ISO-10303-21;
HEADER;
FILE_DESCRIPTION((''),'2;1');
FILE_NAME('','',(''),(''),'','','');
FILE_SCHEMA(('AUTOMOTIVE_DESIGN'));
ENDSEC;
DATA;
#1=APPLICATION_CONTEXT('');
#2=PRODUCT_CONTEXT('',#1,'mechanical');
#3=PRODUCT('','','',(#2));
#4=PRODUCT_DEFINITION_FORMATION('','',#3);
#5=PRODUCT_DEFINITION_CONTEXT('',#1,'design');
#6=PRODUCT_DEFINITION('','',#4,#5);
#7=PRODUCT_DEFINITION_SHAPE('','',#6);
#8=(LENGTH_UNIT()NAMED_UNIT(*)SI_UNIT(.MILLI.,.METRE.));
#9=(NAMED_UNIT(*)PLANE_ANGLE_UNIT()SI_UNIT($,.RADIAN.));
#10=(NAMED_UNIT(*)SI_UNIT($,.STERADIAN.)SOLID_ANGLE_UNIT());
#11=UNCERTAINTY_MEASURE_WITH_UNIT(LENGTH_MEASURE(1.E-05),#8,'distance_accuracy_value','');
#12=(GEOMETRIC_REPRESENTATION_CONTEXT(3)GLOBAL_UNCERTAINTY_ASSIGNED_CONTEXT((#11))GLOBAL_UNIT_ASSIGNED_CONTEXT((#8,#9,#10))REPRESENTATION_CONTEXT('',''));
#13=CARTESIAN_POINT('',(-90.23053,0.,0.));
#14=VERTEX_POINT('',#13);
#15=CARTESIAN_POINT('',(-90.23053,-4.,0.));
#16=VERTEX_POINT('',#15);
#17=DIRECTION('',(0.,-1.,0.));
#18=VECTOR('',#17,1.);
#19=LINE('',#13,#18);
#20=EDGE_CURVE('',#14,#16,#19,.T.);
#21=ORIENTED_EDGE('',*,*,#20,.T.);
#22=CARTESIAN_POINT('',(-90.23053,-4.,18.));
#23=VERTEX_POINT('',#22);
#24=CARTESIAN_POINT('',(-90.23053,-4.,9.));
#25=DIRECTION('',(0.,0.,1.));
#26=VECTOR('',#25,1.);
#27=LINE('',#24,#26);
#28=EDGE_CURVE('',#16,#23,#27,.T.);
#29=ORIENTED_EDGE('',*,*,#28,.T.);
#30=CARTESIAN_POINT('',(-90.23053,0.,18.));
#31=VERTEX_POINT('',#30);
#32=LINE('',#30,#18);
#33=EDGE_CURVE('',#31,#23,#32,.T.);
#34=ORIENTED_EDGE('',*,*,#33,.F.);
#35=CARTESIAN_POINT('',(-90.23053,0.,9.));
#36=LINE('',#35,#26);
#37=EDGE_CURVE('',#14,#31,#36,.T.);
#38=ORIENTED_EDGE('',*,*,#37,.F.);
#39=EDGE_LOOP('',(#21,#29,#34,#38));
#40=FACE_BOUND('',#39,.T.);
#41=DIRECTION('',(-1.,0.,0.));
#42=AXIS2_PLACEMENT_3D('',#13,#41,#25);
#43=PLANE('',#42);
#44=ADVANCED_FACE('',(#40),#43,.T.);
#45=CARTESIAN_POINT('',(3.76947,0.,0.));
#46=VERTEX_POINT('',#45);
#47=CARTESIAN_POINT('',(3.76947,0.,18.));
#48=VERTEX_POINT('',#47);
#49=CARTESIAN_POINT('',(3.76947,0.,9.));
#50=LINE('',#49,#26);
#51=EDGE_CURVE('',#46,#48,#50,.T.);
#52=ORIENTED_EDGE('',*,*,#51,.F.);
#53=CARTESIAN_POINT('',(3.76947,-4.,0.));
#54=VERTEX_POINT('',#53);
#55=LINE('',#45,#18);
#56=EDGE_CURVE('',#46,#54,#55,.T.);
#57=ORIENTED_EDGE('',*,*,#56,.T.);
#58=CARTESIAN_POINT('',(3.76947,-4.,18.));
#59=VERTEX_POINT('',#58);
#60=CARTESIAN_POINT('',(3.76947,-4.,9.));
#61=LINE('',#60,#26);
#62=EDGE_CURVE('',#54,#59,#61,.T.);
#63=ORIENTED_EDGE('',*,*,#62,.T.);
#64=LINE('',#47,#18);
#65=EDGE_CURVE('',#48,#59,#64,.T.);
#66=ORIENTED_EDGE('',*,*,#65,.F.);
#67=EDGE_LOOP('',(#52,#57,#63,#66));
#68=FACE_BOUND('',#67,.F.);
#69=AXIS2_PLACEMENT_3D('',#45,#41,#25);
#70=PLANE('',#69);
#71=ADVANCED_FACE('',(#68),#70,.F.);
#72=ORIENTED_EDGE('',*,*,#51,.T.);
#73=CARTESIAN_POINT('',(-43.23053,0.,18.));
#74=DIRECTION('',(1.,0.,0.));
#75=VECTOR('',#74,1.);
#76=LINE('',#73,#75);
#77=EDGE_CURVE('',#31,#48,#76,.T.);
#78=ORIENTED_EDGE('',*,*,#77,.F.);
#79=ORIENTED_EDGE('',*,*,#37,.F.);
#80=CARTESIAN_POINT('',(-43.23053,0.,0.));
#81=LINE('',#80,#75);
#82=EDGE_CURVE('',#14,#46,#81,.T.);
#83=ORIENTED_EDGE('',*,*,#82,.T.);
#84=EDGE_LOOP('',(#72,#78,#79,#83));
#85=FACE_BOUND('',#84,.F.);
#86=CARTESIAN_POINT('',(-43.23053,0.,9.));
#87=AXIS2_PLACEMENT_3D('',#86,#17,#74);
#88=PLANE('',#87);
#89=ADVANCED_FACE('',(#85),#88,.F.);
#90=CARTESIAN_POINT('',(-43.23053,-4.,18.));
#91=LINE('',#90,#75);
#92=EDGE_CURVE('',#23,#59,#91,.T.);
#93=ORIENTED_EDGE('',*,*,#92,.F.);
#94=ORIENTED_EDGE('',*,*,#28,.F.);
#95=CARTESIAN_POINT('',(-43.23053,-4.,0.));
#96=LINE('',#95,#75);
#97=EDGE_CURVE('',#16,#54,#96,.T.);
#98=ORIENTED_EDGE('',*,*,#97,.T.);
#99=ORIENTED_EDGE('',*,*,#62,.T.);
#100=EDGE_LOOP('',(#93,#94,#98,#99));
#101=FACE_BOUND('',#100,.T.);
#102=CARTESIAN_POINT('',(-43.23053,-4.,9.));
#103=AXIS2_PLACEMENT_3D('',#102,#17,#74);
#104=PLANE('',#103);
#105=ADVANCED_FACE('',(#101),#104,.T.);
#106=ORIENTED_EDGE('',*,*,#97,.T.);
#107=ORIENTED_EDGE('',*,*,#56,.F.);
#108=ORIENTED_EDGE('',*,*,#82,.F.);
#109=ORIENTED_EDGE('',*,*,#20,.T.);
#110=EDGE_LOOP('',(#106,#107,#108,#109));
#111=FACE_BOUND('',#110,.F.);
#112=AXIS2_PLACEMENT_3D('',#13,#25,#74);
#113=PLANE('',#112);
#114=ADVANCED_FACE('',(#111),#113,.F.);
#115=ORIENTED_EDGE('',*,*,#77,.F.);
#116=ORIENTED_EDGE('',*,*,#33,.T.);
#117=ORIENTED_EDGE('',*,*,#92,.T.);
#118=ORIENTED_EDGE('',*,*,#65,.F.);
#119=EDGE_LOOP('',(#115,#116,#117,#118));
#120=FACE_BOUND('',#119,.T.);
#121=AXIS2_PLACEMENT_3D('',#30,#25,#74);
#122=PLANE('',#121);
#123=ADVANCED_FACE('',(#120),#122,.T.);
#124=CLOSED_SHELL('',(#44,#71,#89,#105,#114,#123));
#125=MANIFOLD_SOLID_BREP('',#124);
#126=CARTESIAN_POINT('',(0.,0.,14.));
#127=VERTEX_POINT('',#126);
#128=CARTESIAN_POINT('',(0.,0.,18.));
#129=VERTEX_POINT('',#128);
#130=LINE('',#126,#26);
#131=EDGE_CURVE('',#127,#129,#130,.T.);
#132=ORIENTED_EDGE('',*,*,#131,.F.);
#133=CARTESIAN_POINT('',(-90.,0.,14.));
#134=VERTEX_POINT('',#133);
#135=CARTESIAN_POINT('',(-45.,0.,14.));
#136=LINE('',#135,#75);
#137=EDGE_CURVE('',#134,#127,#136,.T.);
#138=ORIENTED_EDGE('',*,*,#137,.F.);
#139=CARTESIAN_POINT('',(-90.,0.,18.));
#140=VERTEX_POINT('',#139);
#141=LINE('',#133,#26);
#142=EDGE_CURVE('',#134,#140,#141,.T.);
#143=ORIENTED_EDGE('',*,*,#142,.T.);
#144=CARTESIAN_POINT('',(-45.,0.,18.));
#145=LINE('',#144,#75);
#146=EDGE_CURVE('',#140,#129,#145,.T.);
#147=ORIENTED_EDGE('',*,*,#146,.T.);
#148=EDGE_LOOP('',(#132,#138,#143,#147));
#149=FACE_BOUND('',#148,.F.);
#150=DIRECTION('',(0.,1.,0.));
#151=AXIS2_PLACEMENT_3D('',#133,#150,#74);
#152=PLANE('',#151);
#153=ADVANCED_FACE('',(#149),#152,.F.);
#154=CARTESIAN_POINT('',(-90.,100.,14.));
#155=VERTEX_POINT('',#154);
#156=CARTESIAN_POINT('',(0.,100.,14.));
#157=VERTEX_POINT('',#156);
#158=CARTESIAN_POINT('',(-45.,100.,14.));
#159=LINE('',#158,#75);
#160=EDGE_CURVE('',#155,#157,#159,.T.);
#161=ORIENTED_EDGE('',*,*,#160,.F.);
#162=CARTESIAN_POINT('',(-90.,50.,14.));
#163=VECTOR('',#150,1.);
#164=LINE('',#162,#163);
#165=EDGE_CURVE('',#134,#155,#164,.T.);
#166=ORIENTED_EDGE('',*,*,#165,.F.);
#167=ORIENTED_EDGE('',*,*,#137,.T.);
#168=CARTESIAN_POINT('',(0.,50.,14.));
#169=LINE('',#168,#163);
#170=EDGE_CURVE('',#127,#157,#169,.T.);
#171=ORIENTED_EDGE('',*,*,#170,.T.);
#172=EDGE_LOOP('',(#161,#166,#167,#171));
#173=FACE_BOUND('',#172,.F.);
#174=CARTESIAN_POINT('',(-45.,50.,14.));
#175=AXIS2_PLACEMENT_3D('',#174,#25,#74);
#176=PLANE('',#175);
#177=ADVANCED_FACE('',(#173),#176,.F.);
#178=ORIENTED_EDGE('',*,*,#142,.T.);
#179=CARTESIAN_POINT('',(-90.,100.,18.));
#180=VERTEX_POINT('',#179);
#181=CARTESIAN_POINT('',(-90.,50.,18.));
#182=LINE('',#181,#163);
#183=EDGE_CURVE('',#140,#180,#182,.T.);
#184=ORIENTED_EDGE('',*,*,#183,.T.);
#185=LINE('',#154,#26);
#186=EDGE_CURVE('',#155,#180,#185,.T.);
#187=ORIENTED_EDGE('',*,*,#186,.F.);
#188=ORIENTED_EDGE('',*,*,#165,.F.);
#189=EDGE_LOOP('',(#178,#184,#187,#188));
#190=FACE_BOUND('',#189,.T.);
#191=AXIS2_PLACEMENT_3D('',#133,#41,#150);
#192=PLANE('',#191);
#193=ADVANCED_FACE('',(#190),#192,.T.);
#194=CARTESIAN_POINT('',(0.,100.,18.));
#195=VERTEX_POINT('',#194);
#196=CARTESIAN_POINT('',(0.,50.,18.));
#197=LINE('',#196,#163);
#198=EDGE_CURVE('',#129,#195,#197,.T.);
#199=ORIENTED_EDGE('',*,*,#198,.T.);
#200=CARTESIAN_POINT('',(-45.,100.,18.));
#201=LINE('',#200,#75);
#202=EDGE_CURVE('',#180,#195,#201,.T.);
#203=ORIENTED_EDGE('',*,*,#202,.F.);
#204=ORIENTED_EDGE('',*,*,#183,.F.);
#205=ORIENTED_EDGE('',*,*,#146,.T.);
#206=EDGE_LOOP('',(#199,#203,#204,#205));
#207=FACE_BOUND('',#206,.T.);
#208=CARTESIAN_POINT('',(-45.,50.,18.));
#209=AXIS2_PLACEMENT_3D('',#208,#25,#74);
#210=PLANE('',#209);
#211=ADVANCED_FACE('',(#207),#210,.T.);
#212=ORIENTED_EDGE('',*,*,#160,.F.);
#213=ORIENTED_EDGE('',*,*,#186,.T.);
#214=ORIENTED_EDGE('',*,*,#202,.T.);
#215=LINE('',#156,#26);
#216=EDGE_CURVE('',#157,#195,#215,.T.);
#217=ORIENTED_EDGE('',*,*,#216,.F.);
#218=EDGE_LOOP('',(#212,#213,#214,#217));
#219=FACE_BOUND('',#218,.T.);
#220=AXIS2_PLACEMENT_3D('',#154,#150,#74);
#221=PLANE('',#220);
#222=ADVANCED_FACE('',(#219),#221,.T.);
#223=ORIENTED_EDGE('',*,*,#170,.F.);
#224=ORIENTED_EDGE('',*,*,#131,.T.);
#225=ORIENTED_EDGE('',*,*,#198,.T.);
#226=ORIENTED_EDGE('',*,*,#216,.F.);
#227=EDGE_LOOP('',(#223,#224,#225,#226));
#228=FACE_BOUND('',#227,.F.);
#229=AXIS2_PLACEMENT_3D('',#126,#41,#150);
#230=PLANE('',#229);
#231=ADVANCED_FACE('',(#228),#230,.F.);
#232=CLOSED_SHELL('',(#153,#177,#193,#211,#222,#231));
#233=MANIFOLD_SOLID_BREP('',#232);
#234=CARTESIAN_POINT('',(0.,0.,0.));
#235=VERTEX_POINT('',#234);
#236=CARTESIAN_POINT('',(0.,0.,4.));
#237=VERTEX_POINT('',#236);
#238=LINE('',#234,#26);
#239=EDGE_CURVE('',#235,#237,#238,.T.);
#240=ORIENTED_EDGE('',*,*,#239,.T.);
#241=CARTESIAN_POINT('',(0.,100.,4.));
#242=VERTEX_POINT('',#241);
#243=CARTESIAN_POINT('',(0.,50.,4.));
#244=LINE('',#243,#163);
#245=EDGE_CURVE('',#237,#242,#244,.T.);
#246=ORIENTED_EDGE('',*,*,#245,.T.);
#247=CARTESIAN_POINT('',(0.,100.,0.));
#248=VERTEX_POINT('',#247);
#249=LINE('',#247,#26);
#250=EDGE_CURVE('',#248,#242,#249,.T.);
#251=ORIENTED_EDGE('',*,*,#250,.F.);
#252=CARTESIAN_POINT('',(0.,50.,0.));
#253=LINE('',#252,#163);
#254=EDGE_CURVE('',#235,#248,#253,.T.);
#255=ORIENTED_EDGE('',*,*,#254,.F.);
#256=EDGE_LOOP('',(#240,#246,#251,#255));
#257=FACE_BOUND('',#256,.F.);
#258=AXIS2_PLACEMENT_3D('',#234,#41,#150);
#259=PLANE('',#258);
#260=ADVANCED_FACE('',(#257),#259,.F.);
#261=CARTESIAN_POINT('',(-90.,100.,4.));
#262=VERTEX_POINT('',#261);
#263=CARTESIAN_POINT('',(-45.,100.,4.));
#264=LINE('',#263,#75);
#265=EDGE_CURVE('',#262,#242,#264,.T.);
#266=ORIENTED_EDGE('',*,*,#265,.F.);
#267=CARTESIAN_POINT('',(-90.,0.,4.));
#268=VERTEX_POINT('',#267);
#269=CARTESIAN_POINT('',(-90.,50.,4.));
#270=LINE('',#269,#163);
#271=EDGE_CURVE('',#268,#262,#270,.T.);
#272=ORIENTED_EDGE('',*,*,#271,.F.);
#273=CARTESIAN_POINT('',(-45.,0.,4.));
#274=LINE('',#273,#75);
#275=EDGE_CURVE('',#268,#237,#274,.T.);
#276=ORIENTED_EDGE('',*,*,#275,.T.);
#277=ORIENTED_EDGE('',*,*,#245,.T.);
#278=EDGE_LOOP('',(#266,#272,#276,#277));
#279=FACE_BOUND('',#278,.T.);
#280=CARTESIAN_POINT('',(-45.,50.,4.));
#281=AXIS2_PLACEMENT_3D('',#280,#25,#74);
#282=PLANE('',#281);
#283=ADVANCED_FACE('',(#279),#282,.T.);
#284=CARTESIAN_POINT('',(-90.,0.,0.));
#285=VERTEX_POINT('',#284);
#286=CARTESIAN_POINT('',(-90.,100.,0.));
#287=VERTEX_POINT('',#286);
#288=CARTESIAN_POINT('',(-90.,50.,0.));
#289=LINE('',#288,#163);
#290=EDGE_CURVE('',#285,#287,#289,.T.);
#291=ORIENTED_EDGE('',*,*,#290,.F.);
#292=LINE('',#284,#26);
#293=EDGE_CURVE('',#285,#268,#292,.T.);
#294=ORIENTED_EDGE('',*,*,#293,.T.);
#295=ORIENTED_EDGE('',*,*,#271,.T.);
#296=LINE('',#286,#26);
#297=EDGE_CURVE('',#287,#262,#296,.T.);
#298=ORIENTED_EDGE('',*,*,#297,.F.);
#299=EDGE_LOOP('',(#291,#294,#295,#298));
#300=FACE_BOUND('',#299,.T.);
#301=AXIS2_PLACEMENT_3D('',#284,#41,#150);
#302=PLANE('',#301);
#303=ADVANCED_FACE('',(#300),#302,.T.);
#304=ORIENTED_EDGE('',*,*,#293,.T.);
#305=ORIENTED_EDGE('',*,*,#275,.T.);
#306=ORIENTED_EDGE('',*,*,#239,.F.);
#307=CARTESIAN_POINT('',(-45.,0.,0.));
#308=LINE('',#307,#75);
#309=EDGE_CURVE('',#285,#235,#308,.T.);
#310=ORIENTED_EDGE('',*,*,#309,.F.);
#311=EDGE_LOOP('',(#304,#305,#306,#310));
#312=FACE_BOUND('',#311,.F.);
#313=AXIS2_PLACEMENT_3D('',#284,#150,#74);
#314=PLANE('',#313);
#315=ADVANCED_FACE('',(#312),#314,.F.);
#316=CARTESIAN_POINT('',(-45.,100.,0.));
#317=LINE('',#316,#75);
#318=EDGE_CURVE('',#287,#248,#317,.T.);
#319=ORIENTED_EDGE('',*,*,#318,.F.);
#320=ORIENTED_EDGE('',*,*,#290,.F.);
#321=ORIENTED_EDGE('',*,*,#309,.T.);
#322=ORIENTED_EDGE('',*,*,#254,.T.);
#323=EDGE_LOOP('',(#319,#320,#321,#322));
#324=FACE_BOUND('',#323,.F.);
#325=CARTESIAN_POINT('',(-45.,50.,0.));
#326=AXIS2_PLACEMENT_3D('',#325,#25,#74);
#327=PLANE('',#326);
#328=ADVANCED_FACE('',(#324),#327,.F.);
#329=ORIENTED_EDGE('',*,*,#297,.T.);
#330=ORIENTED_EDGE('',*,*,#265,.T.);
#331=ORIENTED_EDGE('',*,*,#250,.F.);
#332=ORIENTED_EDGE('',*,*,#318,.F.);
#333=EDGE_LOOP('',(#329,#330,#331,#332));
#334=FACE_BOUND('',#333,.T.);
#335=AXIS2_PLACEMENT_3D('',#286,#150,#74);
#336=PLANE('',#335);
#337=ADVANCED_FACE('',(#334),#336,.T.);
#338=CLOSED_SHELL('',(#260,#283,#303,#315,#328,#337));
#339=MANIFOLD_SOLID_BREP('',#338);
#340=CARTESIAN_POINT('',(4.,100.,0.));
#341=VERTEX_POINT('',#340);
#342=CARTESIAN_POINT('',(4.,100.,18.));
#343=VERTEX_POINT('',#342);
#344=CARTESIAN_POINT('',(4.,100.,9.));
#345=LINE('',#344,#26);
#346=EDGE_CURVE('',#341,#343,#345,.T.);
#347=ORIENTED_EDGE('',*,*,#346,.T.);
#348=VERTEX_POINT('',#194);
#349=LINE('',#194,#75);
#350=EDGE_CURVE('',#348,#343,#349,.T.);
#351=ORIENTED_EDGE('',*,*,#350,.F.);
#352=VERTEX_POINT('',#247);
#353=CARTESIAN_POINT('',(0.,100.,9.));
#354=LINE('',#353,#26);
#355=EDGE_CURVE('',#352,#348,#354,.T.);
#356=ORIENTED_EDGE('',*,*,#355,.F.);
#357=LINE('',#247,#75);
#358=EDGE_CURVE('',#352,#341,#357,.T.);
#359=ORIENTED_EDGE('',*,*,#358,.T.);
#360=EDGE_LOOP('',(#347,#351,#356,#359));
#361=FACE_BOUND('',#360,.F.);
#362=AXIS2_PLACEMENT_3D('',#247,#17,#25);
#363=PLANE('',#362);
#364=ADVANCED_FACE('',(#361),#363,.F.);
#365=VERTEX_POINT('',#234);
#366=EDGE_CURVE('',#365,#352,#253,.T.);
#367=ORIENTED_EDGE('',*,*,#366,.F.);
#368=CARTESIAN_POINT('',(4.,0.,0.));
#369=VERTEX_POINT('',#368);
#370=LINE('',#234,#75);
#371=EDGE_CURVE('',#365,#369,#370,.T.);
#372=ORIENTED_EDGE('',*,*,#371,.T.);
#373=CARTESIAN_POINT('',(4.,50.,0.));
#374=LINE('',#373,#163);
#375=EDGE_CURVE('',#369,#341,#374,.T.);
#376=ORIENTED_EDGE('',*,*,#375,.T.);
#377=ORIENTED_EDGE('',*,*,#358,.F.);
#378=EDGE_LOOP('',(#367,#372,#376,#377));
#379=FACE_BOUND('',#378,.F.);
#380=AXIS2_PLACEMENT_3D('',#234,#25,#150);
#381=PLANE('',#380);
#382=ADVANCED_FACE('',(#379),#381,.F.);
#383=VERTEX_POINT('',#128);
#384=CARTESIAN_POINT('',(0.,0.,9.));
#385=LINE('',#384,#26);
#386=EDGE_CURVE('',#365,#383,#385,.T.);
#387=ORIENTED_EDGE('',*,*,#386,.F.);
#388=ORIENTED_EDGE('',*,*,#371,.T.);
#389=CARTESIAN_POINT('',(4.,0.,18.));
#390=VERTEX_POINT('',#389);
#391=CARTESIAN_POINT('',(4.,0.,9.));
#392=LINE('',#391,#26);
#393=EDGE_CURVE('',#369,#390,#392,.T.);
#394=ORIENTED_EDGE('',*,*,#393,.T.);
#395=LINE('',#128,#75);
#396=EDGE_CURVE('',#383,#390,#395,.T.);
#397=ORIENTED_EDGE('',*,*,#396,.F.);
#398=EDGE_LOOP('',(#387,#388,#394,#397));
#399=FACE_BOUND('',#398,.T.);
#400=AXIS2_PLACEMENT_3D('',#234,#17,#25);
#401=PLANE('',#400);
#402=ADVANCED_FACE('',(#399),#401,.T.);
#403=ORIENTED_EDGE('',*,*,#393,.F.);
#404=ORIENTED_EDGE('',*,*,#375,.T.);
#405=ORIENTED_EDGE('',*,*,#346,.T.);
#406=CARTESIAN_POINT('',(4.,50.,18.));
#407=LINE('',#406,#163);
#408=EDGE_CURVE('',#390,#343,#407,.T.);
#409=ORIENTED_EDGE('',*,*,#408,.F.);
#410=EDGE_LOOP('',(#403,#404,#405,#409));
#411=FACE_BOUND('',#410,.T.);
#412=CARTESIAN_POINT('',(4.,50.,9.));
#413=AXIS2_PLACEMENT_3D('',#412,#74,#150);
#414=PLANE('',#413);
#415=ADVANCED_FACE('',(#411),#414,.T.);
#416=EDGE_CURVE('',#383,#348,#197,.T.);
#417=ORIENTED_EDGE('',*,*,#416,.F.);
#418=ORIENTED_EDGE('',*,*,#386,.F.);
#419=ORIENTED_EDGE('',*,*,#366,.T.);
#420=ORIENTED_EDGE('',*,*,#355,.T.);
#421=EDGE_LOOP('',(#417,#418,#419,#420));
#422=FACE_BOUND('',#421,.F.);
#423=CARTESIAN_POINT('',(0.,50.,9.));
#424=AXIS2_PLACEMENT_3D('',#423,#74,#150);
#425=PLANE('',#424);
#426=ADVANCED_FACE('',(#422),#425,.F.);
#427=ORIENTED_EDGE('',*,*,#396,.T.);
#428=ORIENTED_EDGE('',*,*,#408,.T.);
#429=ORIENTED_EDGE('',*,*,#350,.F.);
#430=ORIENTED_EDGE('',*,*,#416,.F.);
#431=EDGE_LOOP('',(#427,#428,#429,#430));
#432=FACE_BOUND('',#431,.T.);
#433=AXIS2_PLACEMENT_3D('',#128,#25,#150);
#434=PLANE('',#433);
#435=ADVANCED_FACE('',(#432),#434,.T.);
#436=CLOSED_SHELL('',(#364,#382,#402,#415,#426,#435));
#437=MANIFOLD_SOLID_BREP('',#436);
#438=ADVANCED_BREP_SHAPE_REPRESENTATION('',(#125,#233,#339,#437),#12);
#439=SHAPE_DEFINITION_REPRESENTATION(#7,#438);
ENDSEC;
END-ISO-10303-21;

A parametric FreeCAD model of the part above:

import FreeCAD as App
import Part
import Sketcher

V = App.Vector

doc = App.newDocument("Part")
body = doc.addObject("PartDesign::Body", "Body")

sketch1 = body.newObject("Sketcher::SketchObject", "Sketch")
sketch1.AttachmentSupport = (doc.getObject("XY_Plane"), [""])
sketch1.MapMode = "FlatFace"
sketch1.addGeometry(Part.LineSegment(V(-90, 100, 0), V(-90, 0, 0)), False)
sketch1.addGeometry(Part.LineSegment(V(-90, 0, 0), V(0, 0, 0)), False)
sketch1.addGeometry(Part.LineSegment(V(0, 0, 0), V(0, 100, 0)), False)
sketch1.addGeometry(Part.LineSegment(V(0, 100, 0), V(-90, 100, 0)), False)
sketch1.addConstraint(Sketcher.Constraint("Coincident", 0, 2, 1, 1))
sketch1.addConstraint(Sketcher.Constraint("Coincident", 1, 2, 2, 1))
sketch1.addConstraint(Sketcher.Constraint("Coincident", 2, 2, 3, 1))
sketch1.addConstraint(Sketcher.Constraint("Coincident", 3, 2, 0, 1))
sketch1.addConstraint(Sketcher.Constraint("Vertical", 0))
sketch1.addConstraint(Sketcher.Constraint("Horizontal", 1))
sketch1.addConstraint(Sketcher.Constraint("Vertical", 2))
sketch1.addConstraint(Sketcher.Constraint("Horizontal", 3))
sketch1.addConstraint(Sketcher.Constraint("Coincident", 1, 2, -1, 1))
sketch1.addConstraint(Sketcher.Constraint("DistanceX", 1, 1, 1, 2, 90.0))
sketch1.addConstraint(Sketcher.Constraint("DistanceY", 0, 2, 0, 1, 100.0))
pad1 = body.newObject("PartDesign::Pad", "Pad")
pad1.Profile = sketch1
pad1.Length = 4
body2 = doc.addObject("PartDesign::Body", "Body001")

sketch2 = body2.newObject("Sketcher::SketchObject", "Sketch001")
sketch2.AttachmentSupport = (doc.getObject("XY_Plane001"), [""])
sketch2.MapMode = "FlatFace"
sketch2.AttachmentOffset = App.Placement(V(0, 0, 14), App.Rotation())
sketch2.addGeometry(Part.LineSegment(V(-90, 100, 0), V(-90, 0, 0)), False)
sketch2.addGeometry(Part.LineSegment(V(-90, 0, 0), V(0, 0, 0)), False)
sketch2.addGeometry(Part.LineSegment(V(0, 0, 0), V(0, 100, 0)), False)
sketch2.addGeometry(Part.LineSegment(V(0, 100, 0), V(-90, 100, 0)), False)
sketch2.addConstraint(Sketcher.Constraint("Coincident", 0, 2, 1, 1))
sketch2.addConstraint(Sketcher.Constraint("Coincident", 1, 2, 2, 1))
sketch2.addConstraint(Sketcher.Constraint("Coincident", 2, 2, 3, 1))
sketch2.addConstraint(Sketcher.Constraint("Coincident", 3, 2, 0, 1))
sketch2.addConstraint(Sketcher.Constraint("Vertical", 0))
sketch2.addConstraint(Sketcher.Constraint("Horizontal", 1))
sketch2.addConstraint(Sketcher.Constraint("Vertical", 2))
sketch2.addConstraint(Sketcher.Constraint("Horizontal", 3))
sketch2.addConstraint(Sketcher.Constraint("Coincident", 1, 2, -1, 1))
sketch2.addConstraint(Sketcher.Constraint("DistanceX", 1, 1, 1, 2, 90.0))
sketch2.addConstraint(Sketcher.Constraint("DistanceY", 0, 2, 0, 1, 100.0))
pad2 = body2.newObject("PartDesign::Pad", "Pad001")
pad2.Profile = sketch2
pad2.Length = 4
body3 = doc.addObject("PartDesign::Body", "Body002")

sketch3 = body3.newObject("Sketcher::SketchObject", "Sketch002")
sketch3.AttachmentSupport = (doc.getObject("YZ_Plane002"), [""])
sketch3.MapMode = "FlatFace"
sketch3.addGeometry(Part.LineSegment(V(0, 18, 0), V(0, 0, 0)), False)
sketch3.addGeometry(Part.LineSegment(V(0, 0, 0), V(100, 0, 0)), False)
sketch3.addGeometry(Part.LineSegment(V(100, 0, 0), V(100, 18, 0)), False)
sketch3.addGeometry(Part.LineSegment(V(100, 18, 0), V(0, 18, 0)), False)
sketch3.addConstraint(Sketcher.Constraint("Coincident", 0, 2, 1, 1))
sketch3.addConstraint(Sketcher.Constraint("Coincident", 1, 2, 2, 1))
sketch3.addConstraint(Sketcher.Constraint("Coincident", 2, 2, 3, 1))
sketch3.addConstraint(Sketcher.Constraint("Coincident", 3, 2, 0, 1))
sketch3.addConstraint(Sketcher.Constraint("Vertical", 0))
sketch3.addConstraint(Sketcher.Constraint("Horizontal", 1))
sketch3.addConstraint(Sketcher.Constraint("Vertical", 2))
sketch3.addConstraint(Sketcher.Constraint("Horizontal", 3))
sketch3.addConstraint(Sketcher.Constraint("Coincident", 0, 2, -1, 1))
sketch3.addConstraint(Sketcher.Constraint("DistanceX", 1, 1, 1, 2, 100.0))
sketch3.addConstraint(Sketcher.Constraint("DistanceY", 0, 2, 0, 1, 18.0))
pad3 = body3.newObject("PartDesign::Pad", "Pad002")
pad3.Profile = sketch3
pad3.Length = 4
body4 = doc.addObject("PartDesign::Body", "Body003")

sketch4 = body4.newObject("Sketcher::SketchObject", "Sketch003")
sketch4.AttachmentSupport = (doc.getObject("XZ_Plane003"), [""])
sketch4.MapMode = "FlatFace"
sketch4.addGeometry(Part.LineSegment(V(-90, 18, 0), V(-90, 0, 0)), False)
sketch4.addGeometry(Part.LineSegment(V(-90, 0, 0), V(4, 0, 0)), False)
sketch4.addGeometry(Part.LineSegment(V(4, 0, 0), V(4, 18, 0)), False)
sketch4.addGeometry(Part.LineSegment(V(4, 18, 0), V(-90, 18, 0)), False)
sketch4.addConstraint(Sketcher.Constraint("Coincident", 0, 2, 1, 1))
sketch4.addConstraint(Sketcher.Constraint("Coincident", 1, 2, 2, 1))
sketch4.addConstraint(Sketcher.Constraint("Coincident", 2, 2, 3, 1))
sketch4.addConstraint(Sketcher.Constraint("Coincident", 3, 2, 0, 1))
sketch4.addConstraint(Sketcher.Constraint("Vertical", 0))
sketch4.addConstraint(Sketcher.Constraint("Horizontal", 1))
sketch4.addConstraint(Sketcher.Constraint("Vertical", 2))
sketch4.addConstraint(Sketcher.Constraint("Horizontal", 3))
sketch4.addConstraint(Sketcher.Constraint("PointOnObject", 0, 2, -1))
sketch4.addConstraint(Sketcher.Constraint("DistanceX", 1, 1, 1, 2, 94.0))
sketch4.addConstraint(Sketcher.Constraint("DistanceY", 0, 2, 0, 1, 18.0))
sketch4.addConstraint(Sketcher.Constraint("DistanceX", 0, 2, -1, 1, 90.23053))
pad4 = body4.newObject("PartDesign::Pad", "Pad003")
pad4.Profile = sketch4
pad4.Length = 4

doc.recompute()
